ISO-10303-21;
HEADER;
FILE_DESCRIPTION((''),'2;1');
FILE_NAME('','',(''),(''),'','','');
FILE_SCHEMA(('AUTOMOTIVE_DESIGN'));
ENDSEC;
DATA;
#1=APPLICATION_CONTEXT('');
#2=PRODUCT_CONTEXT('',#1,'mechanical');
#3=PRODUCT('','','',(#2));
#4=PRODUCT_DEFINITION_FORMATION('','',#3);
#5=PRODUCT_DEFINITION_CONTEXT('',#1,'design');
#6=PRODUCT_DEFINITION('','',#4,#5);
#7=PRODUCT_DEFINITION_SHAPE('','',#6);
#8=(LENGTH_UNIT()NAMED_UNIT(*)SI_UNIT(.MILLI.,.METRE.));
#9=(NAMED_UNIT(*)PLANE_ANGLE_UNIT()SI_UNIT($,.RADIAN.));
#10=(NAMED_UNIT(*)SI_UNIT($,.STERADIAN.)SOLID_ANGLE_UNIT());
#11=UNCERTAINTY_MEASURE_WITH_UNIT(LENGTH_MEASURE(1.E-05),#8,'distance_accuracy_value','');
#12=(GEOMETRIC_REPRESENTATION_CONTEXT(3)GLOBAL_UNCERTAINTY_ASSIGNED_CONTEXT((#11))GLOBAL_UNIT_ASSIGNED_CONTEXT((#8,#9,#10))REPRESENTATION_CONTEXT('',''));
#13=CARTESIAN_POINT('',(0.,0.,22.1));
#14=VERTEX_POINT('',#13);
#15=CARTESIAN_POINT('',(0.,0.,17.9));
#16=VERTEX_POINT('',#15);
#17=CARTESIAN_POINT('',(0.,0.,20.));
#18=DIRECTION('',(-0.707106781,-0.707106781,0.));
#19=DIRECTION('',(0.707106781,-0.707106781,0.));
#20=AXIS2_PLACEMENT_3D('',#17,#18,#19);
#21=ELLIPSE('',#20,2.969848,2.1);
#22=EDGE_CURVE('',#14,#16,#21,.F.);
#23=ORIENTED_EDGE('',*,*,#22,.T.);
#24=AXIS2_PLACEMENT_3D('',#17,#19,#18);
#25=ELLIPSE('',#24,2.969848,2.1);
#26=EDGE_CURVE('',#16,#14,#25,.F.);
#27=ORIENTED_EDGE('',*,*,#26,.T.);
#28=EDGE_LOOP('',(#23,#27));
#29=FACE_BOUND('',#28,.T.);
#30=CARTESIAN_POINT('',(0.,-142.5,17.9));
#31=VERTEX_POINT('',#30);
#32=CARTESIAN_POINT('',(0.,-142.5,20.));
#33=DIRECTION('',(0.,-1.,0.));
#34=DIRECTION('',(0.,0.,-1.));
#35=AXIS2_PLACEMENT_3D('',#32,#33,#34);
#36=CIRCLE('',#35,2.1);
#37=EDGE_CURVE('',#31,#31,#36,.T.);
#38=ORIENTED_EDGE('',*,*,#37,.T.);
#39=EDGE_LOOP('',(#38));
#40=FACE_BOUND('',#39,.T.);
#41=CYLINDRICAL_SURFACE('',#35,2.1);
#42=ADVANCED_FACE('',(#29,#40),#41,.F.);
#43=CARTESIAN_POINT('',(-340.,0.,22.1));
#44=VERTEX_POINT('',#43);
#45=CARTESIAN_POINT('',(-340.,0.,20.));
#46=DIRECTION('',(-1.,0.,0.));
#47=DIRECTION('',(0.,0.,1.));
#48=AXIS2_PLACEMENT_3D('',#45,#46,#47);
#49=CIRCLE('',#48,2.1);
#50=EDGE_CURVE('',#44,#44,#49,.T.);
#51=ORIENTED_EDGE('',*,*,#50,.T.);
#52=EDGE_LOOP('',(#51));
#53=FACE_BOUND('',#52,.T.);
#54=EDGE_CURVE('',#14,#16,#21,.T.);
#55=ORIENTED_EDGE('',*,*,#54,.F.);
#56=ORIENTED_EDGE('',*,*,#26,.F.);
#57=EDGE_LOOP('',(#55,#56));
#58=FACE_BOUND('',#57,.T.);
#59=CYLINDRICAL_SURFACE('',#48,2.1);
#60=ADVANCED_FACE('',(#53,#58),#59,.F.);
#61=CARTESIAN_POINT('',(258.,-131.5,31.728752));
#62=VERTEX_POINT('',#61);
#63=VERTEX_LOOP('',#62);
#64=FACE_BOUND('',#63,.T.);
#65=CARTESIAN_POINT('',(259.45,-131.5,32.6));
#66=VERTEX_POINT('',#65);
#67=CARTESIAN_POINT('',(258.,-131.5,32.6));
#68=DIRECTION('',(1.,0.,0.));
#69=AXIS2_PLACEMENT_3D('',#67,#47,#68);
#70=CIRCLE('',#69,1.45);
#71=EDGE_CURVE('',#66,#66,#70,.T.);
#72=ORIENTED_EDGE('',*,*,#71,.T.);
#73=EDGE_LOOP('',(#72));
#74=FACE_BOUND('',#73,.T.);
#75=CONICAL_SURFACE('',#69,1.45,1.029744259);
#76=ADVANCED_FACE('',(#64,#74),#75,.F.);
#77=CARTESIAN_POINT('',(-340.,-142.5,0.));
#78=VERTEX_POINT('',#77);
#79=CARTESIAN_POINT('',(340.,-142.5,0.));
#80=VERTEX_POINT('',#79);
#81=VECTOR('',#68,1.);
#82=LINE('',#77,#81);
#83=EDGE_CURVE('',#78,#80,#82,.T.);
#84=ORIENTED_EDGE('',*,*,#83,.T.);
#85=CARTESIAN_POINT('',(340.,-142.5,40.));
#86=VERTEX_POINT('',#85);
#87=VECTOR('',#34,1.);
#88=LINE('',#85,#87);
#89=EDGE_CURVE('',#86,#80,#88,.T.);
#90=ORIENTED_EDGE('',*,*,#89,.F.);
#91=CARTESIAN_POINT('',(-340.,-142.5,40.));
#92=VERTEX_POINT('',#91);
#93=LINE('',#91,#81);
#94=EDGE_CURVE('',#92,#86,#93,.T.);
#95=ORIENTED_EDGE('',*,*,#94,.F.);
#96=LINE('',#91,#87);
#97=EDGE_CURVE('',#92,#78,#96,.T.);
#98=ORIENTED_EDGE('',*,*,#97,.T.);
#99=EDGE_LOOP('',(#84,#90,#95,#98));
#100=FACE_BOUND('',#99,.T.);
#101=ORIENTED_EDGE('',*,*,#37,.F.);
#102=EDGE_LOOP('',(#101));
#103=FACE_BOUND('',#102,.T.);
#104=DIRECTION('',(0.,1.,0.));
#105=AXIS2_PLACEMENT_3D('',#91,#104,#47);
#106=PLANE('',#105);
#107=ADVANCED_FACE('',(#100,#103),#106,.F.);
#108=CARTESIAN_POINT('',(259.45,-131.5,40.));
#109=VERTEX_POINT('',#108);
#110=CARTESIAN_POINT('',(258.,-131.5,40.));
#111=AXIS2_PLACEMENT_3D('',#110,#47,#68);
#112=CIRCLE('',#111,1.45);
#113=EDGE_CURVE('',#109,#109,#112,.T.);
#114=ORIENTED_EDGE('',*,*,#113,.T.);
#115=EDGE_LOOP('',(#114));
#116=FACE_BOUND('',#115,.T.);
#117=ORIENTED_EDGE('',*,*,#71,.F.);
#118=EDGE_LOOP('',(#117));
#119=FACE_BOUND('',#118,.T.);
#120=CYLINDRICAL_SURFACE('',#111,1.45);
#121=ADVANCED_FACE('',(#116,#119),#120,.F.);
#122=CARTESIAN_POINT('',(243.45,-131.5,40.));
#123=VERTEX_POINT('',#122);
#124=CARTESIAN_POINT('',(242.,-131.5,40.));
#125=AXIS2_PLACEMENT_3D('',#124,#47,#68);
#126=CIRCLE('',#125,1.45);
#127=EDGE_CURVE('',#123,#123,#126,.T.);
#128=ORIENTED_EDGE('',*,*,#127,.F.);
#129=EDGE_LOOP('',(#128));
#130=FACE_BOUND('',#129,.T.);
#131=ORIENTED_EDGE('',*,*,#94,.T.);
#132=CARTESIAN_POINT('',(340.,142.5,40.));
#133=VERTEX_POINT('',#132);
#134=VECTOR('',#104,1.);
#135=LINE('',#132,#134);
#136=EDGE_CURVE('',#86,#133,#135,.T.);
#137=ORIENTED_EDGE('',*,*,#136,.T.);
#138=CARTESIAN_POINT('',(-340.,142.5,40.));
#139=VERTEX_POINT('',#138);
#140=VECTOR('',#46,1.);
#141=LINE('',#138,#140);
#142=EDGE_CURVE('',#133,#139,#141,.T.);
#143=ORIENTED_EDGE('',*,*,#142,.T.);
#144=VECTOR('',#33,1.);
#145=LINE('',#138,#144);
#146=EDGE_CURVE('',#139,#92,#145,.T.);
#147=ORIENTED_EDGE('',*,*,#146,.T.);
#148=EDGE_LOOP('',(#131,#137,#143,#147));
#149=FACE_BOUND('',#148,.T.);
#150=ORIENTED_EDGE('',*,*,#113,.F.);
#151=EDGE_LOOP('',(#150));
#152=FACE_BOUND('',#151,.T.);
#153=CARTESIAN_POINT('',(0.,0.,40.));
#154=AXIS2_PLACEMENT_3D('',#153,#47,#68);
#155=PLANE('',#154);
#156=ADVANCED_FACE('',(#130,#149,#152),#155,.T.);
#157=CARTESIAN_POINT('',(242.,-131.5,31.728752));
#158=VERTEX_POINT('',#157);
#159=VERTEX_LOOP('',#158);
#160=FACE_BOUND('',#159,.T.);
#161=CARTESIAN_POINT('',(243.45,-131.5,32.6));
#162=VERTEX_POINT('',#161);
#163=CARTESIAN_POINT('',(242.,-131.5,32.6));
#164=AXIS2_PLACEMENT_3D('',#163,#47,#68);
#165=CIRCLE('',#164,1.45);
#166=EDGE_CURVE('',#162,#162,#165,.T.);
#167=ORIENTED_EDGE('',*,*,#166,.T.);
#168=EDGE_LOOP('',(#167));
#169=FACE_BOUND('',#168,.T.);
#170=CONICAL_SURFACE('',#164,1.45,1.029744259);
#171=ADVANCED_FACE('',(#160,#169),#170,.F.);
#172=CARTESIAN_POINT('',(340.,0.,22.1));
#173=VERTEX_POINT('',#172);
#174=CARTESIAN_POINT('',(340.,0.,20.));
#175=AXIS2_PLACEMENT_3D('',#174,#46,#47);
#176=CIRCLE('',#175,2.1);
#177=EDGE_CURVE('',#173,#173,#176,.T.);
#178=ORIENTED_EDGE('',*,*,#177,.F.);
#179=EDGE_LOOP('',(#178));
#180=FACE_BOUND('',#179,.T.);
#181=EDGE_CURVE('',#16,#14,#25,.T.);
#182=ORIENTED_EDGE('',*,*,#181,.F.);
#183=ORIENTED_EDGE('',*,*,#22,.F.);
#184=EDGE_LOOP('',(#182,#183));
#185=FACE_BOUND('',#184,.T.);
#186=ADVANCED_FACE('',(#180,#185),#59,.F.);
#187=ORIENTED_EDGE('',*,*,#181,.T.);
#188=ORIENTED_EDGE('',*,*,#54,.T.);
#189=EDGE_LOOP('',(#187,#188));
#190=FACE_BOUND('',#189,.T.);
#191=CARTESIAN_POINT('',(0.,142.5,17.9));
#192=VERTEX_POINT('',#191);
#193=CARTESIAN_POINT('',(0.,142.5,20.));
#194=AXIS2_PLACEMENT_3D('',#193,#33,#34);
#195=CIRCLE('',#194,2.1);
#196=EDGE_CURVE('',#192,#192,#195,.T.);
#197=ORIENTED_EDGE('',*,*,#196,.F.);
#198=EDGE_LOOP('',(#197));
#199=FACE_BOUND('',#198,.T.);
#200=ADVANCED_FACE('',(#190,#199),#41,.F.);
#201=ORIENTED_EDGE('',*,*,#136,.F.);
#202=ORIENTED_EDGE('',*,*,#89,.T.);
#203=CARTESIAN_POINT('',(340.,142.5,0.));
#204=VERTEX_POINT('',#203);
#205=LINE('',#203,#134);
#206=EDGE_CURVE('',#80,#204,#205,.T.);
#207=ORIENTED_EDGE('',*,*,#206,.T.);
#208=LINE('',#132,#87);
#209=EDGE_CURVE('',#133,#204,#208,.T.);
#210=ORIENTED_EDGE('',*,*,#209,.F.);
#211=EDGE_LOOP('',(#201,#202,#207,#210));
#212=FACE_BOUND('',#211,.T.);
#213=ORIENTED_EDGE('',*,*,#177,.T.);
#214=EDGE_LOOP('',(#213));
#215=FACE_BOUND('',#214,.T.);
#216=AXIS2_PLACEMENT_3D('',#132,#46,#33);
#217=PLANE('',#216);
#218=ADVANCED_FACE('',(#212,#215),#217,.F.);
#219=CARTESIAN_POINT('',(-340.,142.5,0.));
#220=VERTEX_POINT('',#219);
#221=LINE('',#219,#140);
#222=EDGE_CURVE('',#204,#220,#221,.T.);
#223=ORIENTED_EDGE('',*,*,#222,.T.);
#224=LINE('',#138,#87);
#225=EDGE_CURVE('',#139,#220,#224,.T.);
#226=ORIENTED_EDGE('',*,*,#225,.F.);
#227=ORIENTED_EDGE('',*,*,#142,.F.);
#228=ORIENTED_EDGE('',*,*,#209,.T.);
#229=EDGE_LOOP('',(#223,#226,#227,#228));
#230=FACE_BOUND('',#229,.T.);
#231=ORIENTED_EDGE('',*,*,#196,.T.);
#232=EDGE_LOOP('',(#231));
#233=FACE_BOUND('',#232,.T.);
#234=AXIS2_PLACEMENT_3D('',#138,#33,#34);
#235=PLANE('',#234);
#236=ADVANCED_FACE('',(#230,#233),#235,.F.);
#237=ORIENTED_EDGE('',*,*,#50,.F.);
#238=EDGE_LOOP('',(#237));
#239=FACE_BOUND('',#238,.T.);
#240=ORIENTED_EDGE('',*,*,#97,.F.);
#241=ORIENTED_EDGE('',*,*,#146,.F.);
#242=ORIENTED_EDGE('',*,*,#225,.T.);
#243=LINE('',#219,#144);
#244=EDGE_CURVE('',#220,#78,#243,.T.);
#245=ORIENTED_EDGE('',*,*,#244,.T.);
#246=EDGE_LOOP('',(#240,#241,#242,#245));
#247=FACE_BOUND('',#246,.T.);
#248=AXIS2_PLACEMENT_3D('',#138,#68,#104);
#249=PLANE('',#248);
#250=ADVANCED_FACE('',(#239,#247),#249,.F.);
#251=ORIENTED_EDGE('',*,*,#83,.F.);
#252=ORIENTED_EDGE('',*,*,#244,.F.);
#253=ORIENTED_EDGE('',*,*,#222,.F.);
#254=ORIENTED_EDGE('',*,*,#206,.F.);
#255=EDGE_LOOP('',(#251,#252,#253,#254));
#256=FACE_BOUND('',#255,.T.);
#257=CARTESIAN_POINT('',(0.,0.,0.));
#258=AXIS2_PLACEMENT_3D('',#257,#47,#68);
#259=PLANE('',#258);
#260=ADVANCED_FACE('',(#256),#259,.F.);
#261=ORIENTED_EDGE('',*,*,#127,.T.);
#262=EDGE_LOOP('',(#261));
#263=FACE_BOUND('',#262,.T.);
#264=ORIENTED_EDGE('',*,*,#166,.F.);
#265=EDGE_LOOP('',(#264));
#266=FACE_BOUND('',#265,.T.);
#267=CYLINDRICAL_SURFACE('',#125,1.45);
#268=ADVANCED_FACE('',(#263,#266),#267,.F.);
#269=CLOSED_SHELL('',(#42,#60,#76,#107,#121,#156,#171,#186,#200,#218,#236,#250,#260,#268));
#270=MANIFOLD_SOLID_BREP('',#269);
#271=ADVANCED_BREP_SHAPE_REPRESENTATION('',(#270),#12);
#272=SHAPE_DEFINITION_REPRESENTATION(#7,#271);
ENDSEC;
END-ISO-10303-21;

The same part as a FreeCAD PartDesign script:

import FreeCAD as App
import Part
import Sketcher
from FreeCAD import Vector


def add_polygon(sketch, points):
    """Adds a closed chain of lines whose ends are joined by coincident constraints."""
    first, n = sketch.GeometryCount, len(points)
    for a, b in zip(points, points[1:] + points[:1]):
        sketch.addGeometry(Part.LineSegment(App.Vector(*a, 0), App.Vector(*b, 0)), False)
    for i in range(n):
        sketch.addConstraint(Sketcher.Constraint("Coincident", first + i, 2, first + (i + 1) % n, 1))

doc = App.newDocument("Part")
params = doc.addObject("Spreadsheet::Sheet", "Params")
for row, (alias, value) in enumerate([
    ("sketch1_width", "680 mm"),
    ("sketch1_height", "285 mm"),
    ("pad1_length", "40 mm"),
    ("sketch2_diameter", "4.2 mm"),
    ("hole_diameter", "4.2 mm"),
    ("sketch3_diameter", "4.2 mm"),
    ("hole2_diameter", "4.2 mm"),
    ("sketch4_diameter", "2.9 mm"),
    ("hole3_diameter", "2.9 mm"),
    ("hole3_depth", "7.4 mm"),
], start=1):
    params.set(f"A{row}", alias)
    params.set(f"B{row}", "=" + value)
    params.setAlias(f"B{row}", alias)

body = doc.addObject("PartDesign::Body", "Body")

# Sketch on XY plane
sketch1 = body.newObject("Sketcher::SketchObject", "Sketch")
sketch1.AttachmentSupport = (doc.getObject("XY_Plane"), [""])
sketch1.MapMode = "FlatFace"
add_polygon(sketch1, [(-340, 142.5), (-340, -142.5), (340, -142.5), (340, 142.5)])  # lines 0-3
sketch1.addConstraint([
    Sketcher.Constraint("Vertical", 0),
    Sketcher.Constraint("Horizontal", 1),
    Sketcher.Constraint("Vertical", 2),
    Sketcher.Constraint("Horizontal", 3),
    Sketcher.Constraint("Symmetric", 0, 2, 2, 2, -1, 1),
    Sketcher.Constraint("DistanceX", 1, 1, 1, 2, 680.0),
    Sketcher.Constraint("DistanceY", 0, 2, 0, 1, 285.0),
])
sketch1.setExpression("Constraints[9]", "Params.sketch1_width")
sketch1.setExpression("Constraints[10]", "Params.sketch1_height")
pad1 = body.newObject("PartDesign::Pad", "Pad")
pad1.Profile = sketch1
pad1.setExpression("Length", "Params.pad1_length")

# Sketch on XZ plane
sketch2 = body.newObject("Sketcher::SketchObject", "Sketch001")
sketch2.AttachmentSupport = (doc.getObject("XZ_Plane"), [""])
sketch2.MapMode = "FlatFace"
sketch2.AttachmentOffset = App.Placement(Vector(0, 0, 142.5), App.Rotation())
sketch2.addGeometry(Part.Circle(Vector(0, 20, 0), Vector(0, 0, 1), 2.1), False)
sketch2.addConstraint([
    Sketcher.Constraint("PointOnObject", 0, 3, -2),
    Sketcher.Constraint("Diameter", 0, 4.2),
    Sketcher.Constraint("DistanceY", -1, 1, 0, 3, 20.0),
])
sketch2.setExpression("Constraints[1]", "Params.sketch2_diameter")
doc.recompute()
hole = body.newObject("PartDesign::Hole", "Hole")
hole.Profile = sketch2
hole.ThreadType = "None"
hole.setExpression("Diameter", "Params.hole_diameter")
hole.DepthType = "ThroughAll"

# Sketch on YZ plane
sketch3 = body.newObject("Sketcher::SketchObject", "Sketch002")
sketch3.AttachmentSupport = (doc.getObject("YZ_Plane"), [""])
sketch3.MapMode = "FlatFace"
sketch3.AttachmentOffset = App.Placement(Vector(0, 0, -340), App.Rotation())
sketch3.addGeometry(Part.Circle(Vector(0, 20, 0), Vector(0, 0, 1), 2.1), False)
sketch3.addConstraint([
    Sketcher.Constraint("PointOnObject", 0, 3, -2),
    Sketcher.Constraint("Diameter", 0, 4.2),
    Sketcher.Constraint("DistanceY", -1, 1, 0, 3, 20.0),
])
sketch3.setExpression("Constraints[1]", "Params.sketch3_diameter")
doc.recompute()
hole2 = body.newObject("PartDesign::Hole", "Hole001")
hole2.Profile = sketch3
hole2.ThreadType = "None"
hole2.setExpression("Diameter", "Params.hole2_diameter")
hole2.DepthType = "ThroughAll"
hole2.Reversed = True

# Sketch on XY plane
sketch4 = body.newObject("Sketcher::SketchObject", "Sketch003")
sketch4.AttachmentSupport = (doc.getObject("XY_Plane"), [""])
sketch4.MapMode = "FlatFace"
sketch4.AttachmentOffset = App.Placement(Vector(0, 0, 40), App.Rotation())
sketch4.addGeometry([
    Part.Circle(Vector(258, -131.5, 0), Vector(0, 0, 1), 1.45),
    Part.Circle(Vector(242, -131.5, 0), Vector(0, 0, 1), 1.45),
], False)
sketch4.addConstraint([
    Sketcher.Constraint("Equal", 0, 1),
    Sketcher.Constraint("Horizontal", 0, 3, 1, 3),
    Sketcher.Constraint("Diameter", 0, 2.9),
    Sketcher.Constraint("DistanceX", -1, 1, 0, 3, 258.0),
    Sketcher.Constraint("DistanceX", -1, 1, 1, 3, 242.0),
    Sketcher.Constraint("DistanceY", 0, 3, -1, 1, 131.5),
])
sketch4.setExpression("Constraints[2]", "Params.sketch4_diameter")
doc.recompute()
hole3 = body.newObject("PartDesign::Hole", "Hole002")
hole3.Profile = sketch4
hole3.ThreadType = "None"
hole3.setExpression("Diameter", "Params.hole3_diameter")
hole3.DepthType = "Dimension"
hole3.setExpression("Depth", "Params.hole3_depth")
hole3.DrillPoint = "Angled"
hole3.DrillPointAngle = 118

doc.recompute()
